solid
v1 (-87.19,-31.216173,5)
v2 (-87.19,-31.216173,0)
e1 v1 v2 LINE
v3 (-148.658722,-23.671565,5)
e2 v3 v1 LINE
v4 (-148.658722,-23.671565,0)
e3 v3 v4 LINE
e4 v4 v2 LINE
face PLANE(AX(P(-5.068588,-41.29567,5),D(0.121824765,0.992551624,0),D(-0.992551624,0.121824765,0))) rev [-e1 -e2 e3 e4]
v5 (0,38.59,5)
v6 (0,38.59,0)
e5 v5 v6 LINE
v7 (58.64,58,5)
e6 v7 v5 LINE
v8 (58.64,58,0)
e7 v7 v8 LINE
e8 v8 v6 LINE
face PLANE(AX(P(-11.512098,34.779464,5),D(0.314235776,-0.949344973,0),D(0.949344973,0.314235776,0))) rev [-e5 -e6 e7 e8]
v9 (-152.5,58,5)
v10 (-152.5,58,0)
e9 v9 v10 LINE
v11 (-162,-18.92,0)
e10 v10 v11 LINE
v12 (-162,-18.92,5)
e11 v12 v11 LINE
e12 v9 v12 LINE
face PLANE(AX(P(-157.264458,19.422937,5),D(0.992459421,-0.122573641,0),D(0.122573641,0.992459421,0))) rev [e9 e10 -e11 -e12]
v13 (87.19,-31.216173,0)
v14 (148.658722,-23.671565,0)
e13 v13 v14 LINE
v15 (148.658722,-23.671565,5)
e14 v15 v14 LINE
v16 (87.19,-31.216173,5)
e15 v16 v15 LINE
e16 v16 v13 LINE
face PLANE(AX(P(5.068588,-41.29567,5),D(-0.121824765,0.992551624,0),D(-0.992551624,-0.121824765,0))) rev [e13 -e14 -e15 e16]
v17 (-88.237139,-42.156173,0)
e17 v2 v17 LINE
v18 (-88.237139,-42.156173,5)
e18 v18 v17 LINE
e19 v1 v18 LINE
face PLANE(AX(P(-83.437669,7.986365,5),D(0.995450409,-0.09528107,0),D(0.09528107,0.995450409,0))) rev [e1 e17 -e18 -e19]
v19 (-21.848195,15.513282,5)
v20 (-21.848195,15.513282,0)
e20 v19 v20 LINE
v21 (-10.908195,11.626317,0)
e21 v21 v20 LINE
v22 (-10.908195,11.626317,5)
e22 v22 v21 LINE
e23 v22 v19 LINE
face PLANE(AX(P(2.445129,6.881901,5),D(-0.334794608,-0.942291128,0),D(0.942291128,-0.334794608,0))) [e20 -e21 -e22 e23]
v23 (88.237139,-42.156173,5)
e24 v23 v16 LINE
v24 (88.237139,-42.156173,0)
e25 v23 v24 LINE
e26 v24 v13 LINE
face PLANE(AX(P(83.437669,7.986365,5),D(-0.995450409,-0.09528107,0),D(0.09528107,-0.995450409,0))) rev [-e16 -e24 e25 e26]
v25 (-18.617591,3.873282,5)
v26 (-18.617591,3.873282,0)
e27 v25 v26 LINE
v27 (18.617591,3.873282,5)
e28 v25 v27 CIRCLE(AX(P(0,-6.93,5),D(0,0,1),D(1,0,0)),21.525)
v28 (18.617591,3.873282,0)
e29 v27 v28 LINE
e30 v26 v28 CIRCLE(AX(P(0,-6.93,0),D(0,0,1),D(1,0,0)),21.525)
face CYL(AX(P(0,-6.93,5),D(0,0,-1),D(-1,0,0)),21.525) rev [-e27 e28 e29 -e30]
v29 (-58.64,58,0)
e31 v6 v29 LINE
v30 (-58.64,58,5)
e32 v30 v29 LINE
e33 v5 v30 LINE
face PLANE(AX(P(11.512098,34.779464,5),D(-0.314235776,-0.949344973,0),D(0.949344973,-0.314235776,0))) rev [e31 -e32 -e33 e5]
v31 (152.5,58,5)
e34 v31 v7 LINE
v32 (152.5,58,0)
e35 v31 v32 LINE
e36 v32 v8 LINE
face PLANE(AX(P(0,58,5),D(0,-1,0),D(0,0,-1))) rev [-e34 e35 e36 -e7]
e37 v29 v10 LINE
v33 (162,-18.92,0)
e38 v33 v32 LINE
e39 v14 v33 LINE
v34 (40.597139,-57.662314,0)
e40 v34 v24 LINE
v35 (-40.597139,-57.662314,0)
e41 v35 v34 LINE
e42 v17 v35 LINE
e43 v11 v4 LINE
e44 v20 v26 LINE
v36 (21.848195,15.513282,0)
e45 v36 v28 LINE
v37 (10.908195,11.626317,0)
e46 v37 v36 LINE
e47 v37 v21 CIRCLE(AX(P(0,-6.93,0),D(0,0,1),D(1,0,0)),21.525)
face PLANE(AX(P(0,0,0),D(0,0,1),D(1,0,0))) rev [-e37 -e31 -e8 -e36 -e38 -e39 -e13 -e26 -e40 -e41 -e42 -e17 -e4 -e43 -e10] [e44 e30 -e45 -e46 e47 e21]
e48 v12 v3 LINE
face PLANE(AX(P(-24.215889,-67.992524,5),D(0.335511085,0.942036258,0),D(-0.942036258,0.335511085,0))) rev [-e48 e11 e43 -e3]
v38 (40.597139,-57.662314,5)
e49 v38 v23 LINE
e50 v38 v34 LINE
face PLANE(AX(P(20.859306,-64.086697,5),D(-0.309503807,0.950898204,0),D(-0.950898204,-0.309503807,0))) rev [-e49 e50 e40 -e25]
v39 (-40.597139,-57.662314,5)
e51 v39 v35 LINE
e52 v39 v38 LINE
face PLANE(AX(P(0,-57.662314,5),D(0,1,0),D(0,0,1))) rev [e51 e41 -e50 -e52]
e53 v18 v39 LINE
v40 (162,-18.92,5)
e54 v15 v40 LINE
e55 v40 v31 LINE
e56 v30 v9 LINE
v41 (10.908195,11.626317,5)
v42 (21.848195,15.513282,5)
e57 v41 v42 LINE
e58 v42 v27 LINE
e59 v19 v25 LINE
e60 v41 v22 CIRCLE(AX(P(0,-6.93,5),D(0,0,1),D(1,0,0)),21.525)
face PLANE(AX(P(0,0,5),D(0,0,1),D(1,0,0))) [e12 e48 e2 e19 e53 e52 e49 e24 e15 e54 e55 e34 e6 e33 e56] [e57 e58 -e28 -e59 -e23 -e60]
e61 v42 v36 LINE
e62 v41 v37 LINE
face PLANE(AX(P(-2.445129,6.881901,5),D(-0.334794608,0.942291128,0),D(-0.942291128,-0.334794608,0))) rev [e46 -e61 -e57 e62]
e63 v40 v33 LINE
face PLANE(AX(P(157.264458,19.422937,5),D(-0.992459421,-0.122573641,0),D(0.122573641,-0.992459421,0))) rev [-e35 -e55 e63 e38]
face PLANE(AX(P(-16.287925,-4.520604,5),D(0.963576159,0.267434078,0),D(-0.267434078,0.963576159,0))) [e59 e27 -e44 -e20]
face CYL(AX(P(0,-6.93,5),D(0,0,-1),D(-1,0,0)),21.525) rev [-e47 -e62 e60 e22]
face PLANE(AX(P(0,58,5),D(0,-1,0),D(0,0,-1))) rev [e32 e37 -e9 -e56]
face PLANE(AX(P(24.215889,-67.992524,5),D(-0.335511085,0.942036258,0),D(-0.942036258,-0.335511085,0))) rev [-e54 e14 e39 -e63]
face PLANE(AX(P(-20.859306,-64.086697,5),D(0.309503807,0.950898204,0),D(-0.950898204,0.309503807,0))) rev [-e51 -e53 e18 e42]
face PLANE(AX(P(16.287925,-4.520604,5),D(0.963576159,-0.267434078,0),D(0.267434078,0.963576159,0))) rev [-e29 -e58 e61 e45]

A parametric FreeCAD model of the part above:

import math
import FreeCAD as App
import Part
import Sketcher
from FreeCAD import Vector
Q = App.Units.Quantity

doc = App.newDocument("Part")
params = doc.addObject("Spreadsheet::Sheet", "Params")
for row, (alias, value) in enumerate([
    ("sketch1_length", "50.1 mm"),
    ("sketch1_width", "93.86 mm"),
    ("sketch1_length2", "61.93 mm"),
    ("sketch1_length3", "10.99 mm"),
    ("sketch1_length4", "11.61 mm"),
    ("pad1_length", "5 mm"),
], start=1):
    params.set(f"A{row}", alias)
    params.set(f"B{row}", "=" + value)
    params.setAlias(f"B{row}", alias)

body = doc.addObject("PartDesign::Body", "Body")

# Sketch on XY plane
sketch1 = body.newObject("Sketcher::SketchObject", "Sketch")
sketch1.AttachmentSupport = (doc.getObject("XY_Plane"), [""])
sketch1.MapMode = "FlatFace"
sketch1.addGeometry([
    Part.LineSegment(Vector(162, -19, 0), Vector(152, 58, 0)),  # 0
    Part.LineSegment(Vector(152, 58, 0), Vector(59, 58, 0)),  # 1
    Part.LineSegment(Vector(59, 58, 0), Vector(0, 39, 0)),  # 2
    Part.LineSegment(Vector(0, 39, 0), Vector(-59, 58, 0)),  # 3
    Part.LineSegment(Vector(-59, 58, 0), Vector(-152, 58, 0)),  # 4
    Part.LineSegment(Vector(-152, 58, 0), Vector(-162, -19, 0)),  # 5
    Part.LineSegment(Vector(-162, -19, 0), Vector(-149, -24, 0)),  # 6
    Part.LineSegment(Vector(-149, -24, 0), Vector(-87, -31, 0)),  # 7
    Part.LineSegment(Vector(-87, -31, 0), Vector(-88, -42, 0)),  # 8
    Part.LineSegment(Vector(-88, -42, 0), Vector(-41, -58, 0)),  # 9
    Part.LineSegment(Vector(-41, -58, 0), Vector(41, -58, 0)),  # 10
    Part.LineSegment(Vector(41, -58, 0), Vector(88, -42, 0)),  # 11
    Part.LineSegment(Vector(88, -42, 0), Vector(87, -31, 0)),  # 12
    Part.LineSegment(Vector(87, -31, 0), Vector(149, -24, 0)),  # 13
    Part.LineSegment(Vector(149, -24, 0), Vector(162, -19, 0)),  # 14
    Part.ArcOfCircle(Part.Circle(Vector(0, -7, 0), Vector(0, 0, 1), 22), math.radians(60), math.radians(120)),  # 15
    Part.LineSegment(Vector(11, 12, 0), Vector(22, 16, 0)),  # 16
    Part.LineSegment(Vector(22, 16, 0), Vector(19, 4, 0)),  # 17
    Part.ArcOfCircle(Part.Circle(Vector(0, -7, 0), Vector(0, 0, 1), 22), math.radians(0), math.radians(30)),  # 18
    Part.ArcOfCircle(Part.Circle(Vector(0, -7, 0), Vector(0, 0, 1), 22), math.radians(150), math.radians(360)),  # 19
    Part.LineSegment(Vector(-19, 4, 0), Vector(-22, 16, 0)),  # 20
    Part.LineSegment(Vector(-22, 16, 0), Vector(-11, 12, 0)),  # 21
], False)
sketch1.addConstraint([
    Sketcher.Constraint("Coincident", 0, 2, 1, 1),
    Sketcher.Constraint("Coincident", 1, 2, 2, 1),
    Sketcher.Constraint("Coincident", 2, 2, 3, 1),
    Sketcher.Constraint("Coincident", 3, 2, 4, 1),
    Sketcher.Constraint("Coincident", 4, 2, 5, 1),
    Sketcher.Constraint("Coincident", 5, 2, 6, 1),
    Sketcher.Constraint("Coincident", 6, 2, 7, 1),
    Sketcher.Constraint("Coincident", 7, 2, 8, 1),
    Sketcher.Constraint("Coincident", 8, 2, 9, 1),
    Sketcher.Constraint("Coincident", 9, 2, 10, 1),
    Sketcher.Constraint("Coincident", 10, 2, 11, 1),
    Sketcher.Constraint("Coincident", 11, 2, 12, 1),
    Sketcher.Constraint("Coincident", 12, 2, 13, 1),
    Sketcher.Constraint("Coincident", 13, 2, 14, 1),
    Sketcher.Constraint("Coincident", 14, 2, 0, 1),
    Sketcher.Constraint("Coincident", 15, 1, 16, 1),
    Sketcher.Constraint("Coincident", 16, 2, 17, 1),
    Sketcher.Constraint("Coincident", 17, 2, 18, 2),
    Sketcher.Constraint("Tangent", 18, 1, 19, 2),
    Sketcher.Constraint("Coincident", 19, 1, 20, 1),
    Sketcher.Constraint("Coincident", 20, 2, 21, 1),
    Sketcher.Constraint("Coincident", 21, 2, 15, 2),
    Sketcher.Constraint("Horizontal", 1),
    Sketcher.Constraint("Horizontal", 4),
    Sketcher.Constraint("Horizontal", 10),
    Sketcher.Constraint("Coincident", 18, 3, 15, 3),
    Sketcher.Constraint("Equal", 15, 18),
    Sketcher.Constraint("Equal", 18, 19),
    Sketcher.Constraint("Symmetric", 1, 2, 3, 2, -2),
    Sketcher.Constraint("Symmetric", 8, 2, 11, 2, -2),
    Sketcher.Constraint("Symmetric", 7, 2, 12, 2, -2),
    Sketcher.Constraint("Symmetric", 6, 2, 13, 2, -2),
    Sketcher.Constraint("Symmetric", 5, 2, 14, 2, -2),
    Sketcher.Constraint("Symmetric", 17, 2, 19, 1, -2),
    Sketcher.Constraint("Symmetric", 16, 2, 20, 2, -2),
    Sketcher.Constraint("PointOnObject", 2, 2, -2),
    Sketcher.Constraint("Horizontal", 19, 3, 18, 1),
    Sketcher.Constraint("Horizontal", 15, 1, 21, 2),
    Sketcher.Constraint("Equal", 1, 4),
    Sketcher.Constraint("Equal", 9, 11),
    Sketcher.Constraint("DistanceY", -1, 1, 0, 2, Q("58 mm")),
    Sketcher.Constraint("DistanceX", 5, 2, -1, 1, Q("162 mm")),
    Sketcher.Constraint("Radius", 15, Q("21.525 mm")),
    Sketcher.Constraint("Distance", 9, Q("50.1 mm")),
    Sketcher.Constraint("DistanceX", 1, 2, 1, 1, Q("93.86 mm")),
    Sketcher.Constraint("DistanceX", -1, 1, 0, 2, Q("152.5 mm")),
    Sketcher.Constraint("Distance", 7, Q("61.93 mm")),
    Sketcher.Constraint("Distance", 8, Q("10.99 mm")),
    Sketcher.Constraint("Distance", 16, Q("11.61 mm")),
    Sketcher.Constraint("Distance", 17, Q("12.08 mm")),
    Sketcher.Constraint("DistanceY", 15, 3, -1, 1, Q("6.93 mm")),
    Sketcher.Constraint("DistanceY", -1, 1, 2, 2, Q("38.59 mm")),
    Sketcher.Constraint("DistanceY", 5, 2, -1, 1, Q("18.92 mm")),
    Sketcher.Constraint("DistanceX", 7, 2, -1, 1, Q("87.19 mm")),
    Sketcher.Constraint("DistanceY", 8, 2, 7, 2, Q("10.94 mm")),
    Sketcher.Constraint("DistanceX", 8, 2, 9, 2, Q("47.64 mm")),
    Sketcher.Constraint("DistanceX", 15, 1, 16, 2, Q("10.94 mm")),
    Sketcher.Constraint("DistanceY", 17, 2, 16, 2, Q("11.64 mm")),
    Sketcher.Constraint("Distance", 6, Q("14.16217 mm")),
    Sketcher.Constraint("DistanceY", 10, 2, 13, 2, Q("33.990748 mm")),
])
sketch1.setExpression("Constraints[43]", "Params.sketch1_length")
sketch1.setExpression("Constraints[44]", "Params.sketch1_width")
sketch1.setExpression("Constraints[46]", "Params.sketch1_length2")
sketch1.setExpression("Constraints[47]", "Params.sketch1_length3")
sketch1.setExpression("Constraints[48]", "Params.sketch1_length4")
pad1 = body.newObject("PartDesign::Pad", "Pad")
pad1.Profile = sketch1
pad1.setExpression("Length", "Params.pad1_length")

doc.recompute()
